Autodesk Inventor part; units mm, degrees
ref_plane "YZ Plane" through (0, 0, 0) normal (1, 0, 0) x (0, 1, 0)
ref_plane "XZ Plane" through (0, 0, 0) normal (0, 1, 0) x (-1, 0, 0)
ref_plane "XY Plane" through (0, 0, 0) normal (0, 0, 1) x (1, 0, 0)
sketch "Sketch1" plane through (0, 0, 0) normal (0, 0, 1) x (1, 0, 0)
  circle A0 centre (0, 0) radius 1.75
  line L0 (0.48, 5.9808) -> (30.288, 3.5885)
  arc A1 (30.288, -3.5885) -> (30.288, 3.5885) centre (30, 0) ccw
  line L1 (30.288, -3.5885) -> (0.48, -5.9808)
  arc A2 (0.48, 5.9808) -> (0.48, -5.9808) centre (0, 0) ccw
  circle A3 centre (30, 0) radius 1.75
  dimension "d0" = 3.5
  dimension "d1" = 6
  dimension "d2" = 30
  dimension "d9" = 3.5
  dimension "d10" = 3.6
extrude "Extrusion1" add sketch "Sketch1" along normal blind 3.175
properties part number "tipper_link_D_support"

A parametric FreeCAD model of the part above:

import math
import FreeCAD as App
import Part
import Sketcher
from FreeCAD import Vector

doc = App.newDocument("Part")
body = doc.addObject("PartDesign::Body", "Body")

# Sketch on XY plane
sketch1 = body.newObject("Sketcher::SketchObject", "Sketch")
sketch1.AttachmentSupport = (doc.getObject("XY_Plane"), [""])
sketch1.MapMode = "FlatFace"
sketch1.addGeometry(Part.LineSegment(Vector(30.3, 3.6, 0), Vector(0.5, 6, 0)), False)
sketch1.addGeometry(Part.ArcOfCircle(Part.Circle(Vector(0, 0, 0), Vector(0, 0, 1), 6), math.radians(85), math.radians(275)), False)
sketch1.addGeometry(Part.LineSegment(Vector(0.5, -6, 0), Vector(30.3, -3.6, 0)), False)
sketch1.addGeometry(Part.ArcOfCircle(Part.Circle(Vector(30, 0, 0), Vector(0, 0, 1), 3.6), math.radians(-85), math.radians(85)), False)
sketch1.addGeometry(Part.Circle(Vector(0, 0, 0), Vector(0, 0, 1), 1.8), False)
sketch1.addGeometry(Part.Circle(Vector(30, 0, 0), Vector(0, 0, 1), 1.8), False)
sketch1.addConstraint(Sketcher.Constraint("Tangent", 0, 2, 1, 1))
sketch1.addConstraint(Sketcher.Constraint("Tangent", 1, 2, 2, 1))
sketch1.addConstraint(Sketcher.Constraint("Tangent", 2, 2, 3, 1))
sketch1.addConstraint(Sketcher.Constraint("Tangent", 3, 2, 0, 1))
sketch1.addConstraint(Sketcher.Constraint("Coincident", 1, 3, -1, 1))
sketch1.addConstraint(Sketcher.Constraint("Coincident", 4, 3, -1, 1))
sketch1.addConstraint(Sketcher.Constraint("Coincident", 5, 3, 3, 3))
sketch1.addConstraint(Sketcher.Constraint("Equal", 4, 5))
sketch1.addConstraint(Sketcher.Constraint("PointOnObject", 3, 3, -1))
sketch1.addConstraint(Sketcher.Constraint("Radius", 1, 6.0))
sketch1.addConstraint(Sketcher.Constraint("Diameter", 4, 3.5))
sketch1.addConstraint(Sketcher.Constraint("Radius", 3, 3.6))
sketch1.addConstraint(Sketcher.Constraint("DistanceX", -1, 1, 3, 3, 30.0))
pad1 = body.newObject("PartDesign::Pad", "Pad")
pad1.Profile = sketch1
pad1.Length = 3.175

doc.recompute()
